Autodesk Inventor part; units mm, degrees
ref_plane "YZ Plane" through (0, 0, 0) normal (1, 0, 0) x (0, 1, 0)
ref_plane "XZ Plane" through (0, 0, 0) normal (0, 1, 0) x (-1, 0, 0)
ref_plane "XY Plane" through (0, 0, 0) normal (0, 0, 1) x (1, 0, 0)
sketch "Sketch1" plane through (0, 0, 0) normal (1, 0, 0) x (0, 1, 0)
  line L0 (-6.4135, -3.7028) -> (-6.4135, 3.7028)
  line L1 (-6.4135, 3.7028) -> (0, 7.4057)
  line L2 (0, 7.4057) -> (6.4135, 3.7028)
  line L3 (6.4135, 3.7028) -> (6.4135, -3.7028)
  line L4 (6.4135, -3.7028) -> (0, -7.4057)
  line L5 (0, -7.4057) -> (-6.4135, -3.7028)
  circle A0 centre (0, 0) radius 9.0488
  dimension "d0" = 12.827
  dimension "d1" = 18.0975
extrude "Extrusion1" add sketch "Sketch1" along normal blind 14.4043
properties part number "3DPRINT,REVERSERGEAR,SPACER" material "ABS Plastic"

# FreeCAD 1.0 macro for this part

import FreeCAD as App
import Part
import Sketcher

V = App.Vector
Q = App.Units.Quantity


def add_polygon(sketch, points):
    """Adds a closed chain of lines whose ends are joined by coincident constraints."""
    first, n = sketch.GeometryCount, len(points)
    for a, b in zip(points, points[1:] + points[:1]):
        sketch.addGeometry(Part.LineSegment(App.Vector(*a, 0), App.Vector(*b, 0)), False)
    for i in range(n):
        sketch.addConstraint(Sketcher.Constraint("Coincident", first + i, 2, first + (i + 1) % n, 1))

doc = App.newDocument("Part")
body = doc.addObject("PartDesign::Body", "Body")

# Sketch on YZ plane
sketch1 = body.newObject("Sketcher::SketchObject", "Sketch")
sketch1.AttachmentSupport = (doc.getObject("YZ_Plane"), [""])
sketch1.MapMode = "FlatFace"
sketch1.addGeometry(Part.Circle(V(0, 0, 0), V(0, 0, 1), 9.0488), False)  # 0
add_polygon(sketch1, [(0, -7.4057), (-6.4135, -3.7028), (-6.4135, 3.7028), (0, 7.4057), (6.4135, 3.7028), (6.4135, -3.7028)])  # lines 1-6
sketch1.addConstraint([
    Sketcher.Constraint("Vertical", 2),
    Sketcher.Constraint("Vertical", 5),
    Sketcher.Constraint("Coincident", 0, 3, -1, 1),
    Sketcher.Constraint("Symmetric", 1, 2, 4, 2, -1, 1),
    Sketcher.Constraint("Symmetric", 3, 2, 6, 2, -1, 1),
    Sketcher.Constraint("PointOnObject", 3, 2, -2),
    Sketcher.Constraint("Parallel", 3, 6),
    Sketcher.Constraint("Horizontal", 2, 2, 4, 2),
    Sketcher.Constraint("Diameter", 0, Q("18.0976 mm")),
    Sketcher.Constraint("Angle", 1, Q("149.9996 deg")),
    Sketcher.Constraint("DistanceX", 2, 2, 4, 2, Q("12.827 mm")),
    Sketcher.Constraint("DistanceY", 2, 1, 2, 2, Q("7.4056 mm")),
])
pad1 = body.newObject("PartDesign::Pad", "Pad")
pad1.Profile = sketch1
pad1.Length = 14.4043

doc.recompute()
